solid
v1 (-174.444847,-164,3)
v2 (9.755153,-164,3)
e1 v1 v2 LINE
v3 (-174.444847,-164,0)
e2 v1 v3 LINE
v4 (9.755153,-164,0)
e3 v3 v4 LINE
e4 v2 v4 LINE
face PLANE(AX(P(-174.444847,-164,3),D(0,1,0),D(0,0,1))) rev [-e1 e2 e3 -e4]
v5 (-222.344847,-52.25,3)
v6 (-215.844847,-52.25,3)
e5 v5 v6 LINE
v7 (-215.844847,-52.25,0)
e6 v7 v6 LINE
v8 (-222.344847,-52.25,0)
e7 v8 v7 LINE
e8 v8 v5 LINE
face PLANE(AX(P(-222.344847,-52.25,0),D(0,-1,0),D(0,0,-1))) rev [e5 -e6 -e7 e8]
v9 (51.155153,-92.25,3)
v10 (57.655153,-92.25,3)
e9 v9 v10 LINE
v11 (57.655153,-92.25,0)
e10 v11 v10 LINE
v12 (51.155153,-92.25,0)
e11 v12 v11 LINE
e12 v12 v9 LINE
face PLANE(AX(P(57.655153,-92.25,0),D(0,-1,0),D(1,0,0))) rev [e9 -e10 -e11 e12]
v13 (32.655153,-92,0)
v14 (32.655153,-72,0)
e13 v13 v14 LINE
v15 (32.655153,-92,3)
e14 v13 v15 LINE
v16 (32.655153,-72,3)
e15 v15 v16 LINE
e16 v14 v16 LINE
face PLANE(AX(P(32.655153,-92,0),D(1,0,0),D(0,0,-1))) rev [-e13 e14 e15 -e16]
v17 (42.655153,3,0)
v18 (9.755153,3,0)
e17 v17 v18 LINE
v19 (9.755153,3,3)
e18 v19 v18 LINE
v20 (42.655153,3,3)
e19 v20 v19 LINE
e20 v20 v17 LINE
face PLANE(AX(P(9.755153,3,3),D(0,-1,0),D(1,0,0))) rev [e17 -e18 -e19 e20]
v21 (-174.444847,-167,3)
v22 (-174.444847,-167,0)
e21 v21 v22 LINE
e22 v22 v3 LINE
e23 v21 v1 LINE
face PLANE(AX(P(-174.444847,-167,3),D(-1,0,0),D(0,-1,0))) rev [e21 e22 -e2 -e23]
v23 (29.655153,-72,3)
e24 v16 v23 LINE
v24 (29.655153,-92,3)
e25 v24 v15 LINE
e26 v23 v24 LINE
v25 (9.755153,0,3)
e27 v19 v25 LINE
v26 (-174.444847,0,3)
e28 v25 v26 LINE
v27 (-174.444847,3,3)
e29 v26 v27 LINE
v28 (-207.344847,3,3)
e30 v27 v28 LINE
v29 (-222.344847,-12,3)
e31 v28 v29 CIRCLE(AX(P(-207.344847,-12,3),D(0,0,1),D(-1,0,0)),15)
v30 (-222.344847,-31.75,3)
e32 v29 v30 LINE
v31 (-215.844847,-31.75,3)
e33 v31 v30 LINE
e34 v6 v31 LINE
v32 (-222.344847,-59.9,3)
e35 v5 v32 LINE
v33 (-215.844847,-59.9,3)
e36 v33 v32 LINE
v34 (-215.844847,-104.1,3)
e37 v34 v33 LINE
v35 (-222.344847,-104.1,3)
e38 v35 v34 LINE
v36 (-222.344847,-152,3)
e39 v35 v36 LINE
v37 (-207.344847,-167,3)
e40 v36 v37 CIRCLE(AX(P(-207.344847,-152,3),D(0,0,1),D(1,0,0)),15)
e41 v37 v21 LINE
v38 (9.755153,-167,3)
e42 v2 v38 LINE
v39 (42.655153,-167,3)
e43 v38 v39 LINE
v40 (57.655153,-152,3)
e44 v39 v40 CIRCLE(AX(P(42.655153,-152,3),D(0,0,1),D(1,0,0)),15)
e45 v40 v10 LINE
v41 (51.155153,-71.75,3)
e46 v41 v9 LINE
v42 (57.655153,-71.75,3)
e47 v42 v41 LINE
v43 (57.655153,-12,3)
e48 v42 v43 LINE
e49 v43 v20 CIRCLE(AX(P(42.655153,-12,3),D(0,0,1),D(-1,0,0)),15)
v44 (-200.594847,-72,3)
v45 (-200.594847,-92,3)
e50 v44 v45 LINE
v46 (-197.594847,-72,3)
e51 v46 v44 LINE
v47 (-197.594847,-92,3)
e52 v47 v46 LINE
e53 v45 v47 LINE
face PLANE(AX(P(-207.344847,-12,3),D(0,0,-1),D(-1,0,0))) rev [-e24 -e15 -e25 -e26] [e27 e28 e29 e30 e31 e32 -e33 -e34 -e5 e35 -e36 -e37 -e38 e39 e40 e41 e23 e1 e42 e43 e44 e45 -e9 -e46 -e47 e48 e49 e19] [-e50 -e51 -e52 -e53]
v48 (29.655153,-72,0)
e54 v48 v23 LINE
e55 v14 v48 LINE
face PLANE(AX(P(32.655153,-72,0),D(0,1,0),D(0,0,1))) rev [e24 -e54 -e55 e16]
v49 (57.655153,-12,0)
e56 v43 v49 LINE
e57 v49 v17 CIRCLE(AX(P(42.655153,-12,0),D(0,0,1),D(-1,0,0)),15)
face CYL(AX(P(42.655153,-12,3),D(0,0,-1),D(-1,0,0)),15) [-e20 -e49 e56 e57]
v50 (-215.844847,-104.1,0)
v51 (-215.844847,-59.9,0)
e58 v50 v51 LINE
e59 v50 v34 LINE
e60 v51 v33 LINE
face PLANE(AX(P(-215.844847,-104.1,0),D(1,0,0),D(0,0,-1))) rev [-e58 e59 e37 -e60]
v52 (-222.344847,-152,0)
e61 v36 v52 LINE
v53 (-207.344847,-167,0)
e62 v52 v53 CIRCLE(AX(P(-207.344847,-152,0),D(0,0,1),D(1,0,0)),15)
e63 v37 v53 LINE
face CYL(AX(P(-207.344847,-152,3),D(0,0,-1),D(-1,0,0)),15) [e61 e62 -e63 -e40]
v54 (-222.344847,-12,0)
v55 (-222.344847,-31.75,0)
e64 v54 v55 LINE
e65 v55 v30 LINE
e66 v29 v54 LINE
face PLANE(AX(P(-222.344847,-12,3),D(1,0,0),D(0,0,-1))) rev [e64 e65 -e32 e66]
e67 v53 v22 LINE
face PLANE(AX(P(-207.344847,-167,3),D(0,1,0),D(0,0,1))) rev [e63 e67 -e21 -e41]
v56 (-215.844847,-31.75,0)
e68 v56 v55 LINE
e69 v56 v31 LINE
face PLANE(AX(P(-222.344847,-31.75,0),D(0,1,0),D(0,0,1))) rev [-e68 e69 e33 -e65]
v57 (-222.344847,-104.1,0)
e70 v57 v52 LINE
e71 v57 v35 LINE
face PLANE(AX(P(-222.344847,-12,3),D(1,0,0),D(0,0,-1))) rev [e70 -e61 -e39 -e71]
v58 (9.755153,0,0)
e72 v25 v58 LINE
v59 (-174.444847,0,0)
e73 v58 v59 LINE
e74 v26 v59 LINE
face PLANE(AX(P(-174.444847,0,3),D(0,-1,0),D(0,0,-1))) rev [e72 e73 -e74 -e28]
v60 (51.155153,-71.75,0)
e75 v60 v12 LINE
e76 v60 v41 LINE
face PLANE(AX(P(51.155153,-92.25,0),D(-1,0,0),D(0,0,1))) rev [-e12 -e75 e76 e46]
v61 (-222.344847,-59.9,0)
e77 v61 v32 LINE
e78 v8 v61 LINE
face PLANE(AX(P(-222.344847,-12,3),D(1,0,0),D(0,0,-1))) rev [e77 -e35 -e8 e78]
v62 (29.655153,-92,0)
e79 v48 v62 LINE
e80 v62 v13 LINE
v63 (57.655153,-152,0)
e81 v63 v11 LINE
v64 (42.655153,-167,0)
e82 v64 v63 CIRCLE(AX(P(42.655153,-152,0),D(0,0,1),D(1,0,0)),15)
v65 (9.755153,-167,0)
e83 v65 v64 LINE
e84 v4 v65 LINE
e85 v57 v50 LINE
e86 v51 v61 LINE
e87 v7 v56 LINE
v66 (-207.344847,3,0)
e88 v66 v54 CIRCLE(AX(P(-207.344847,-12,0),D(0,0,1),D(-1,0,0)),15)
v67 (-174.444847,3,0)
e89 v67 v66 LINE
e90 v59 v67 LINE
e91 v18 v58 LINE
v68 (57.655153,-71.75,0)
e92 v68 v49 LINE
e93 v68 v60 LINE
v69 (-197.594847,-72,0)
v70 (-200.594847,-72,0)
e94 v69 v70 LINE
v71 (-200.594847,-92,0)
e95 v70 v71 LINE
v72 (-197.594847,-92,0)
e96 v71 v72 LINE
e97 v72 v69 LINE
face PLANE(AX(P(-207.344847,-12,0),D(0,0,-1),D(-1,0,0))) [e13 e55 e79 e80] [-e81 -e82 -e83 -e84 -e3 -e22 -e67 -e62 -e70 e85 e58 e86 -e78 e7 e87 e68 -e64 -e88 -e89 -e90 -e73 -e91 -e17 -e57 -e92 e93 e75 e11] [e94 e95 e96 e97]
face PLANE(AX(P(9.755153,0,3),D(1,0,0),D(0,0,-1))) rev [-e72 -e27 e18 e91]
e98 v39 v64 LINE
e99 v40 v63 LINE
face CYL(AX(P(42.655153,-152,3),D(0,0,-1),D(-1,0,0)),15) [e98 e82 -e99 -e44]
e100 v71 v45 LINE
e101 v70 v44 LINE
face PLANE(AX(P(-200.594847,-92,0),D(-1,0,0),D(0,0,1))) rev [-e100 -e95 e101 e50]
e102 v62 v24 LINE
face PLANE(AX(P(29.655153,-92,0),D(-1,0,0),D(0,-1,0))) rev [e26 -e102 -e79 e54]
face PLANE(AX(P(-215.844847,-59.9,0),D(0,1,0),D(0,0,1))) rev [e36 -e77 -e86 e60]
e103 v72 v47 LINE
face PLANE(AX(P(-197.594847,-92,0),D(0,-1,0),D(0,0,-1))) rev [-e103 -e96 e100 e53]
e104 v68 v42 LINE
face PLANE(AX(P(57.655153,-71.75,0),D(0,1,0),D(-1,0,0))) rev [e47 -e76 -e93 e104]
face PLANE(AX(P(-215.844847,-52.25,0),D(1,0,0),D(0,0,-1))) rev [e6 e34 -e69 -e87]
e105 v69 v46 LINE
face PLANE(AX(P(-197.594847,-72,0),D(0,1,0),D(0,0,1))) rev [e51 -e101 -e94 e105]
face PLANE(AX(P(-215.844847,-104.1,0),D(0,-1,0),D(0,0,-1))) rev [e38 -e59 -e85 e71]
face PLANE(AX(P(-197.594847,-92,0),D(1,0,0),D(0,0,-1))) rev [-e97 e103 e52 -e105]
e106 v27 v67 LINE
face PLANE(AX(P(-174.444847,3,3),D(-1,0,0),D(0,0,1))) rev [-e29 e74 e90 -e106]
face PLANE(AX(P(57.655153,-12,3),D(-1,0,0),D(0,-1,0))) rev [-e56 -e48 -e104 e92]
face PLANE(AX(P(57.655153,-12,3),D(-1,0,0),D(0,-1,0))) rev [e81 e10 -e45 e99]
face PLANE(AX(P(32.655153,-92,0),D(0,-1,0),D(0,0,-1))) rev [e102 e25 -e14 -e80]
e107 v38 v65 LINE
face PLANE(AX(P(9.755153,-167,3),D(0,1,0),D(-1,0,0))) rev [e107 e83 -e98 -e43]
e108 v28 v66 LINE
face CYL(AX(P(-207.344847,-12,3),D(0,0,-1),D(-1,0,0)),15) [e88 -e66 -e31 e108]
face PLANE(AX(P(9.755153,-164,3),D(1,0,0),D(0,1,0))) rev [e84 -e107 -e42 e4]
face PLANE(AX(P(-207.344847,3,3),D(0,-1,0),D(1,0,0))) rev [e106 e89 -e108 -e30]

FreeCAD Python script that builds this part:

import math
import FreeCAD as App
import Part
import Sketcher

V = App.Vector
Q = App.Units.Quantity


def add_polygon(sketch, points):
    """Adds a closed chain of lines whose ends are joined by coincident constraints."""
    first, n = sketch.GeometryCount, len(points)
    for a, b in zip(points, points[1:] + points[:1]):
        sketch.addGeometry(Part.LineSegment(App.Vector(*a, 0), App.Vector(*b, 0)), False)
    for i in range(n):
        sketch.addConstraint(Sketcher.Constraint("Coincident", first + i, 2, first + (i + 1) % n, 1))

doc = App.newDocument("Part")
body = doc.addObject("PartDesign::Body", "Body")

sketch1 = body.newObject("Sketcher::SketchObject", "Sketch")
sketch1.AttachmentSupport = (doc.getObject("XY_Plane"), [""])
sketch1.MapMode = "FlatFace"
sketch1.addGeometry([
    Part.LineSegment(V(-174.444847, 3, 0), V(-207.344847, 3, 0)),
    Part.ArcOfCircle(Part.Circle(V(-207.344847, -12, 0), V(0, 0, 1), 15), math.radians(90), math.radians(180)),
    Part.LineSegment(V(-222.344847, -12, 0), V(-222.344847, -152, 0)),
    Part.ArcOfCircle(Part.Circle(V(-207.344847, -152, 0), V(0, 0, 1), 15), math.radians(180), math.radians(270)),
    Part.LineSegment(V(-207.344847, -167, 0), V(-174.444847, -167, 0)),
    Part.LineSegment(V(-174.444847, -167, 0), V(-174.444847, -164, 0)),
    Part.LineSegment(V(-174.444847, -164, 0), V(9.755153, -164, 0)),
    Part.LineSegment(V(9.755153, -164, 0), V(9.755153, -167, 0)),
    Part.LineSegment(V(9.755153, -167, 0), V(42.655153, -167, 0)),
    Part.ArcOfCircle(Part.Circle(V(42.655153, -152, 0), V(0, 0, 1), 15), math.radians(-90), math.radians(0)),
    Part.LineSegment(V(57.655153, -152, 0), V(57.655153, -12, 0)),
    Part.ArcOfCircle(Part.Circle(V(42.655153, -12, 0), V(0, 0, 1), 15), math.radians(0), math.radians(90)),
    Part.LineSegment(V(42.655153, 3, 0), V(9.755153, 3, 0)),
    Part.LineSegment(V(9.755153, 3, 0), V(9.755153, 0, 0)),
    Part.LineSegment(V(9.755153, 0, 0), V(-174.444847, 0, 0)),
    Part.LineSegment(V(-174.444847, 0, 0), V(-174.444847, 3, 0)),
], False)
sketch1.addConstraint([
    Sketcher.Constraint("Tangent", 0, 2, 1, 1),
    Sketcher.Constraint("Tangent", 1, 2, 2, 1),
    Sketcher.Constraint("Tangent", 2, 2, 3, 1),
    Sketcher.Constraint("Tangent", 3, 2, 4, 1),
    Sketcher.Constraint("Coincident", 4, 2, 5, 1),
    Sketcher.Constraint("Coincident", 5, 2, 6, 1),
    Sketcher.Constraint("Coincident", 6, 2, 7, 1),
    Sketcher.Constraint("Coincident", 7, 2, 8, 1),
    Sketcher.Constraint("Tangent", 8, 2, 9, 1),
    Sketcher.Constraint("Tangent", 9, 2, 10, 1),
    Sketcher.Constraint("Tangent", 10, 2, 11, 1),
    Sketcher.Constraint("Tangent", 11, 2, 12, 1),
    Sketcher.Constraint("Coincident", 12, 2, 13, 1),
    Sketcher.Constraint("Coincident", 13, 2, 14, 1),
    Sketcher.Constraint("Coincident", 14, 2, 15, 1),
    Sketcher.Constraint("Coincident", 15, 2, 0, 1),
    Sketcher.Constraint("Horizontal", 0),
    Sketcher.Constraint("Vertical", 2),
    Sketcher.Constraint("Horizontal", 4),
    Sketcher.Constraint("Vertical", 5),
    Sketcher.Constraint("Horizontal", 6),
    Sketcher.Constraint("Vertical", 7),
    Sketcher.Constraint("Horizontal", 8),
    Sketcher.Constraint("Vertical", 10),
    Sketcher.Constraint("Horizontal", 12),
    Sketcher.Constraint("Vertical", 13),
    Sketcher.Constraint("Horizontal", 14),
    Sketcher.Constraint("Vertical", 15),
    Sketcher.Constraint("Equal", 1, 3),
    Sketcher.Constraint("Equal", 3, 9),
    Sketcher.Constraint("Equal", 9, 11),
    Sketcher.Constraint("PointOnObject", 13, 2, -1),
    Sketcher.Constraint("Horizontal", 3, 3, 9, 3),
    Sketcher.Constraint("Horizontal", 1, 3, 11, 3),
    Sketcher.Constraint("Vertical", 7, 2, 12, 2),
    Sketcher.Constraint("Vertical", 5, 2, 14, 2),
    Sketcher.Constraint("Equal", 4, 8),
    Sketcher.Constraint("Equal", 7, 13),
    Sketcher.Constraint("Radius", 1, Q("15 mm")),
    Sketcher.Constraint("DistanceY", 2, 2, 2, 1, Q("140 mm")),
    Sketcher.Constraint("DistanceY", 5, 1, 5, 2, Q("3 mm")),
    Sketcher.Constraint("DistanceX", 0, 2, 0, 1, Q("32.9 mm")),
    Sketcher.Constraint("DistanceX", 6, 1, 6, 2, Q("184.2 mm")),
    Sketcher.Constraint("DistanceX", 1, 3, -1, 1, Q("207.344847 mm")),
])
pad1 = body.newObject("PartDesign::Pad", "Pad")
pad1.Profile = sketch1
pad1.Length = 3

sketch2 = body.newObject("Sketcher::SketchObject", "Sketch001")
sketch2.AttachmentSupport = (doc.getObject("XY_Plane"), [""])
sketch2.MapMode = "FlatFace"
sketch2.AttachmentOffset = App.Placement(V(0, 0, 3), App.Rotation())
add_polygon(sketch2, [(-222.344847, -31.75), (-222.344847, -52.25), (-215.844847, -52.25), (-215.844847, -31.75)])
add_polygon(sketch2, [(-222.344847, -59.9), (-222.344847, -104.1), (-215.844847, -104.1), (-215.844847, -59.9)])
add_polygon(sketch2, [(51.155153, -71.75), (51.155153, -92.25), (57.655153, -92.25), (57.655153, -71.75)])
add_polygon(sketch2, [(-200.594847, -72), (-200.594847, -92), (-197.594847, -92), (-197.594847, -72)])
add_polygon(sketch2, [(29.655153, -72), (29.655153, -92), (32.655153, -92), (32.655153, -72)])
sketch2.addConstraint([
    Sketcher.Constraint("Vertical", 0),
    Sketcher.Constraint("Horizontal", 1),
    Sketcher.Constraint("Vertical", 2),
    Sketcher.Constraint("Horizontal", 3),
    Sketcher.Constraint("Vertical", 4),
    Sketcher.Constraint("Horizontal", 5),
    Sketcher.Constraint("Vertical", 6),
    Sketcher.Constraint("Horizontal", 7),
    Sketcher.Constraint("Vertical", 8),
    Sketcher.Constraint("Horizontal", 9),
    Sketcher.Constraint("Vertical", 10),
    Sketcher.Constraint("Horizontal", 11),
    Sketcher.Constraint("Vertical", 12),
    Sketcher.Constraint("Horizontal", 13),
    Sketcher.Constraint("Vertical", 14),
    Sketcher.Constraint("Horizontal", 15),
    Sketcher.Constraint("Vertical", 16),
    Sketcher.Constraint("Horizontal", 17),
    Sketcher.Constraint("Vertical", 18),
    Sketcher.Constraint("Horizontal", 19),
    Sketcher.Constraint("Horizontal", 13, 2, 16, 2),
    Sketcher.Constraint("Horizontal", 15, 2, 18, 2),
    Sketcher.Constraint("Vertical", 3, 2, 4, 2),
    Sketcher.Constraint("Vertical", 2, 2, 5, 2),
    Sketcher.Constraint("Equal", 7, 9),
    Sketcher.Constraint("Equal", 15, 17),
    Sketcher.Constraint("Equal", 2, 8),
    Sketcher.Constraint("DistanceX", 13, 1, 13, 2, Q("3 mm")),
    Sketcher.Constraint("DistanceY", 12, 2, 12, 1, Q("20 mm")),
    Sketcher.Constraint("DistanceX", 1, 1, 1, 2, Q("6.5 mm")),
    Sketcher.Constraint("DistanceY", 0, 2, 0, 1, Q("20.5 mm")),
    Sketcher.Constraint("DistanceY", 4, 2, 4, 1, Q("44.2 mm")),
    Sketcher.Constraint("DistanceY", 12, 2, -1, 1, Q("92 mm")),
    Sketcher.Constraint("DistanceX", 5, 2, 8, 2, Q("267 mm")),
    Sketcher.Constraint("DistanceY", 8, 2, 1, 2, Q("40 mm")),
    Sketcher.Constraint("DistanceX", 16, 2, 9, 2, Q("28 mm")),
    Sketcher.Constraint("DistanceY", 4, 2, -1, 1, Q("104.1 mm")),
    Sketcher.Constraint("DistanceY", 0, 2, -1, 1, Q("52.25 mm")),
    Sketcher.Constraint("DistanceX", 5, 2, 12, 2, Q("15.25 mm")),
    Sketcher.Constraint("DistanceX", 0, 2, -1, 1, Q("222.344847 mm")),
])
pocket1 = body.newObject("PartDesign::Pocket", "Pocket")
pocket1.Profile = sketch2
pocket1.Length = 3

doc.recompute()
